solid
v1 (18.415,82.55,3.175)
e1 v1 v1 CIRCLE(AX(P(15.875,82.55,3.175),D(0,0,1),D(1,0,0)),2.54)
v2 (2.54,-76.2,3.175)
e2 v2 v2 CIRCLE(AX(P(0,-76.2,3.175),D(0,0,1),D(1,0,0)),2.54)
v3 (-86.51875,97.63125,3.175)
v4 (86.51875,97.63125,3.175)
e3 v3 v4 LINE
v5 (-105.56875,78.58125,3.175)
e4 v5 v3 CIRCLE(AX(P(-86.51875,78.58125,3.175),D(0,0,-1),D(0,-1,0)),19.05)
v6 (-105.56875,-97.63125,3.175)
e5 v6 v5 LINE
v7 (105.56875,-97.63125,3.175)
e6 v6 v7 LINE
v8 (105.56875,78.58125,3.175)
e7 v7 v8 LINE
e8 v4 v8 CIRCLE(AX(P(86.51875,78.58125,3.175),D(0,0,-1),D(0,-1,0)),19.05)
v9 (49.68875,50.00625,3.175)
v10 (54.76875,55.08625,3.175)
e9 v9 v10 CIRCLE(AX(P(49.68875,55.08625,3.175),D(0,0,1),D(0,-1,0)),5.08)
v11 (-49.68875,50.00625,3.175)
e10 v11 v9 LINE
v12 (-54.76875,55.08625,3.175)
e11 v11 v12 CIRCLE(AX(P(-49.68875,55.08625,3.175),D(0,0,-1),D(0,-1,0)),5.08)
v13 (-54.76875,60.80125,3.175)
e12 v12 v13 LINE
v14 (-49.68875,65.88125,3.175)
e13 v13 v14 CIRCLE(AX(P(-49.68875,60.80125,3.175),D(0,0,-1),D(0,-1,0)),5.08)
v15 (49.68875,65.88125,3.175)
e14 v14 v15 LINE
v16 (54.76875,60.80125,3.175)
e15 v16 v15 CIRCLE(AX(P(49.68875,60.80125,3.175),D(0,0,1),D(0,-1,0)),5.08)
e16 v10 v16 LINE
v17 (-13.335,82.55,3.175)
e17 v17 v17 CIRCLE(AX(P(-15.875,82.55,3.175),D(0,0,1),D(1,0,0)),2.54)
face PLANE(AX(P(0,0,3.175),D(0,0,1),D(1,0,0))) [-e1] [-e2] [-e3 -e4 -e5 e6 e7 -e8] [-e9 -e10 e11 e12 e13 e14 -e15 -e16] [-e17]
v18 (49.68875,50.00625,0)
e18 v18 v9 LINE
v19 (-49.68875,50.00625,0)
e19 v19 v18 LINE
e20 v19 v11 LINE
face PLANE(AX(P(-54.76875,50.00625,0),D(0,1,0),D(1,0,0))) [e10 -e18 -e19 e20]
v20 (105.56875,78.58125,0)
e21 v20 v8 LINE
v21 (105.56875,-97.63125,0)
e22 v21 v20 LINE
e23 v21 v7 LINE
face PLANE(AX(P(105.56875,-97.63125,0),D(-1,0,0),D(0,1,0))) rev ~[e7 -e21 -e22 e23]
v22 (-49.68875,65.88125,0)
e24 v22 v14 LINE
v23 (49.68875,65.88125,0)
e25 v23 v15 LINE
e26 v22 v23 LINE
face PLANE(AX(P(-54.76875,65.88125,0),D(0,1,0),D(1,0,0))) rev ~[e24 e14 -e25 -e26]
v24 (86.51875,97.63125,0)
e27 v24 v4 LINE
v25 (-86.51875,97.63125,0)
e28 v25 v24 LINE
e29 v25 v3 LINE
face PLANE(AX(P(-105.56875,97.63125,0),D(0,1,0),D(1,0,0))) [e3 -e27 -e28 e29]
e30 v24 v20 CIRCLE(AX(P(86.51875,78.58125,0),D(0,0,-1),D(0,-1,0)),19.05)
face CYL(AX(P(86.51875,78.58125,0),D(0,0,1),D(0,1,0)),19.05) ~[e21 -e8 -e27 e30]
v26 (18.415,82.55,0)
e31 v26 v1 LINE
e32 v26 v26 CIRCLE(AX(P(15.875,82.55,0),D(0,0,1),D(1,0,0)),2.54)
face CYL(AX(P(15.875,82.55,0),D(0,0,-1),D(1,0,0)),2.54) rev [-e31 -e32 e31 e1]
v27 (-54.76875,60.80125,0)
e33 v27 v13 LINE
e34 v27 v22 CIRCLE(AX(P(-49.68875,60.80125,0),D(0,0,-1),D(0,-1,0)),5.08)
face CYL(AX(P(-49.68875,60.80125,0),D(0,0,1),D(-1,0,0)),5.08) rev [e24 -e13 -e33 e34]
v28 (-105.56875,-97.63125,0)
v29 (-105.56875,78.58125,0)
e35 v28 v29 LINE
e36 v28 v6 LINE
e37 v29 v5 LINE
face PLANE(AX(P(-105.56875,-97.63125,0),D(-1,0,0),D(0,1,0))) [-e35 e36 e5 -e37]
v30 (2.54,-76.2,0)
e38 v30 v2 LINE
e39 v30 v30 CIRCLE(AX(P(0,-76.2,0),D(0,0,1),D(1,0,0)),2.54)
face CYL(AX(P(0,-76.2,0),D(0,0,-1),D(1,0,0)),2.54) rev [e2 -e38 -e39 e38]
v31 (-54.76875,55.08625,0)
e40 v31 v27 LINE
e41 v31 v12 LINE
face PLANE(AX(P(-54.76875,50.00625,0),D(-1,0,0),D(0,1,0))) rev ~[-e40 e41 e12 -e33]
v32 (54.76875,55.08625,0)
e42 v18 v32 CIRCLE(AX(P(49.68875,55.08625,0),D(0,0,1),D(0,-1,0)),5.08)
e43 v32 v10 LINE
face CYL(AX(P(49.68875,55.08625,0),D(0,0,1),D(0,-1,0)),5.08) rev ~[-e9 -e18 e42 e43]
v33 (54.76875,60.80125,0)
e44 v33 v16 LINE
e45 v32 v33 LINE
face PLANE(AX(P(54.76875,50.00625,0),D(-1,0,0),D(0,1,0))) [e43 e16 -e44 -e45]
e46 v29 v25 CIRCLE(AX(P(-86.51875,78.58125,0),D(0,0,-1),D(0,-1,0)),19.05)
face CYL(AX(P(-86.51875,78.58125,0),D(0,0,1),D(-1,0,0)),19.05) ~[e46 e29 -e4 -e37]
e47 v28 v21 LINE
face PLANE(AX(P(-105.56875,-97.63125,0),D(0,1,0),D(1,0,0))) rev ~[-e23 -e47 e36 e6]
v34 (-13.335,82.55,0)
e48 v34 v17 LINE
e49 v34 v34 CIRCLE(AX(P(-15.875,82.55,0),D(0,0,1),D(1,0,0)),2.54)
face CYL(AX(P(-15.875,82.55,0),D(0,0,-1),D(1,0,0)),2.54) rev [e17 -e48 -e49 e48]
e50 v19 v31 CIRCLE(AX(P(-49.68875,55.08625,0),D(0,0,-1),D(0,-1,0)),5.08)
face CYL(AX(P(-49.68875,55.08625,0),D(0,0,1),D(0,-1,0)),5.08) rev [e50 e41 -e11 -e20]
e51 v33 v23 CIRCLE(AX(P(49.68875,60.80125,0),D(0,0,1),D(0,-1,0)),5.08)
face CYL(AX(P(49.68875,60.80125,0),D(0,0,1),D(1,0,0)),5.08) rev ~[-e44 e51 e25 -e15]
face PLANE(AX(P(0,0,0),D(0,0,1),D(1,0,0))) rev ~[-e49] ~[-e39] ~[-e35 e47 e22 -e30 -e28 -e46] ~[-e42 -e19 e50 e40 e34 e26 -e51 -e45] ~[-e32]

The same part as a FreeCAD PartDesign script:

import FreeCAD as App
import Part
import Sketcher
from FreeCAD import Vector
Q = App.Units.Quantity


def edges_at(feature, points):
    """Names of the edges that pass closest to the given points."""
    edges = feature.Shape.Edges
    near = lambda p: min(range(len(edges)), key=lambda i: edges[i].distToShape(Part.Vertex(*p))[0])
    return sorted({f"Edge{near(p) + 1}" for p in points})

doc = App.newDocument("Part")
body = doc.addObject("PartDesign::Body", "Body")

# Sketch on XY plane
sketch1 = doc.addObject("Sketcher::SketchObject", "Sketch")
body.addObject(sketch1)
sketch1.AttachmentSupport = (doc.XY_Plane, [""])
sketch1.MapMode = "FlatFace"
sketch1.addGeometry(Part.LineSegment(Vector(-105.6, 97.6, 0), Vector(-105.6, -97.6, 0)), False)
sketch1.addGeometry(Part.LineSegment(Vector(-105.6, -97.6, 0), Vector(105.6, -97.6, 0)), False)
sketch1.addGeometry(Part.LineSegment(Vector(105.6, -97.6, 0), Vector(105.6, 97.6, 0)), False)
sketch1.addGeometry(Part.LineSegment(Vector(105.6, 97.6, 0), Vector(-105.6, 97.6, 0)), False)
sketch1.addGeometry(Part.Circle(Vector(0, -76.2, 0), Vector(0, 0, 1), 2.5), False)
sketch1.addGeometry(Part.Circle(Vector(-15.9, 82.5, 0), Vector(0, 0, 1), 2.5), False)
sketch1.addGeometry(Part.LineSegment(Vector(54.8, 50, 0), Vector(-54.8, 50, 0)), False)
sketch1.addGeometry(Part.LineSegment(Vector(-54.8, 50, 0), Vector(-54.8, 65.9, 0)), False)
sketch1.addGeometry(Part.LineSegment(Vector(-54.8, 65.9, 0), Vector(54.8, 65.9, 0)), False)
sketch1.addGeometry(Part.LineSegment(Vector(54.8, 65.9, 0), Vector(54.8, 50, 0)), False)
sketch1.addGeometry(Part.Circle(Vector(15.9, 82.5, 0), Vector(0, 0, 1), 2.5), False)
sketch1.addConstraint(Sketcher.Constraint("Coincident", 0, 2, 1, 1))
sketch1.addConstraint(Sketcher.Constraint("Coincident", 1, 2, 2, 1))
sketch1.addConstraint(Sketcher.Constraint("Coincident", 2, 2, 3, 1))
sketch1.addConstraint(Sketcher.Constraint("Coincident", 3, 2, 0, 1))
sketch1.addConstraint(Sketcher.Constraint("Coincident", 6, 2, 7, 1))
sketch1.addConstraint(Sketcher.Constraint("Coincident", 7, 2, 8, 1))
sketch1.addConstraint(Sketcher.Constraint("Coincident", 8, 2, 9, 1))
sketch1.addConstraint(Sketcher.Constraint("Coincident", 9, 2, 6, 1))
sketch1.addConstraint(Sketcher.Constraint("Vertical", 0))
sketch1.addConstraint(Sketcher.Constraint("Horizontal", 1))
sketch1.addConstraint(Sketcher.Constraint("Vertical", 2))
sketch1.addConstraint(Sketcher.Constraint("Horizontal", 3))
sketch1.addConstraint(Sketcher.Constraint("Horizontal", 6))
sketch1.addConstraint(Sketcher.Constraint("Vertical", 7))
sketch1.addConstraint(Sketcher.Constraint("Horizontal", 8))
sketch1.addConstraint(Sketcher.Constraint("Vertical", 9))
sketch1.addConstraint(Sketcher.Constraint("Equal", 4, 5))
sketch1.addConstraint(Sketcher.Constraint("Equal", 5, 10))
sketch1.addConstraint(Sketcher.Constraint("Symmetric", 0, 2, 2, 2, -1, 1))
sketch1.addConstraint(Sketcher.Constraint("Symmetric", 5, 3, 10, 3, -2))
sketch1.addConstraint(Sketcher.Constraint("PointOnObject", 4, 3, -2))
sketch1.addConstraint(Sketcher.Constraint("Diameter", 4, Q("0.2 in")))
sketch1.addConstraint(Sketcher.Constraint("DistanceY", 4, 3, -1, 1, Q("3 in")))
sketch1.addConstraint(Sketcher.Constraint("DistanceX", 3, 2, 6, 2, Q("2 in")))
sketch1.addConstraint(Sketcher.Constraint("DistanceX", 8, 2, 2, 2, Q("2 in")))
sketch1.addConstraint(Sketcher.Constraint("DistanceX", 1, 1, 1, 2, Q("8.3125 in")))
sketch1.addConstraint(Sketcher.Constraint("DistanceY", 0, 2, 0, 1, Q("7.6875 in")))
sketch1.addConstraint(Sketcher.Constraint("DistanceY", 7, 1, 7, 2, Q("0.625 in")))
sketch1.addConstraint(Sketcher.Constraint("DistanceY", -1, 1, 5, 3, Q("3.25 in")))
sketch1.addConstraint(Sketcher.Constraint("DistanceX", 5, 3, 10, 3, Q("1.25 in")))
sketch1.addConstraint(Sketcher.Constraint("DistanceY", 7, 2, 3, 2, Q("1.25 in")))
pad1 = doc.addObject("PartDesign::Pad", "Pad")
body.addObject(pad1)
pad1.Profile = sketch1
pad1.Length = Q("0.125 in")
doc.recompute()

fillet = doc.addObject("PartDesign::Fillet", "Fillet")
body.addObject(fillet)
fillet.Base = (pad1, edges_at(pad1, [(-105.569, 97.631, 1.587), (105.569, 97.631, 1.587)]))
fillet.Radius = Q("0.75 in")
doc.recompute()

fillet2 = doc.addObject("PartDesign::Fillet", "Fillet001")
body.addObject(fillet2)
fillet2.Base = (fillet, edges_at(fillet, [
    (-54.769, 50.006, 1.587),
    (-54.769, 65.881, 1.587),
    (54.769, 50.006, 1.587),
    (54.769, 65.881, 1.587),
]))
fillet2.Radius = Q("0.2 in")

doc.recompute()
